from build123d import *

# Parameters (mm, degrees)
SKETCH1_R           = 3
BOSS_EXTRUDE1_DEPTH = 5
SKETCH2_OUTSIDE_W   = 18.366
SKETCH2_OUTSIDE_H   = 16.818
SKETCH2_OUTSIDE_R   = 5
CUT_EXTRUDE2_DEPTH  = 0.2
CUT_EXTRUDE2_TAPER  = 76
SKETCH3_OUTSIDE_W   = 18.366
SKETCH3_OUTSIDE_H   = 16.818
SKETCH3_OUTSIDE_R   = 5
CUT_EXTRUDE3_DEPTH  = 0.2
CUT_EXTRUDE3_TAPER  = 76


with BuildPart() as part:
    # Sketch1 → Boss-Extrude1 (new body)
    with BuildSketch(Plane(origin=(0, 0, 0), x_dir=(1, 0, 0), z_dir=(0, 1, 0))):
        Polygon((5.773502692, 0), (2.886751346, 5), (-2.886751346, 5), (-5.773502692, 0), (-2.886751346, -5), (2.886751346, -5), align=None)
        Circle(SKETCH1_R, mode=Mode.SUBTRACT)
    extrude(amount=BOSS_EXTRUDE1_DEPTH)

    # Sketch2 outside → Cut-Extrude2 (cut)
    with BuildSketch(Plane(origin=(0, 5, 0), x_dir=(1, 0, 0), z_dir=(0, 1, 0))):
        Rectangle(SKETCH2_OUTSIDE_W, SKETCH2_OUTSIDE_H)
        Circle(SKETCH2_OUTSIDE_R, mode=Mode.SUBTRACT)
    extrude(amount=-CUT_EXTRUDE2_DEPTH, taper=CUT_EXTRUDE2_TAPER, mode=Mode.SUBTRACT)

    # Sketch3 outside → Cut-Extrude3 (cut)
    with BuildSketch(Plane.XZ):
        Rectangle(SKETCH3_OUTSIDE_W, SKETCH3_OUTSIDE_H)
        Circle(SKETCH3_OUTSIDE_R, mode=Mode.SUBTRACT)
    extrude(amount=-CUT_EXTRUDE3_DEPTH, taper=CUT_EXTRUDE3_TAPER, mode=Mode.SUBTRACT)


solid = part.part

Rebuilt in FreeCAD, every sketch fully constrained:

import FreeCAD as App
import Part
import Sketcher
Q = App.Units.Quantity

doc = App.newDocument("Part")
body = doc.addObject("PartDesign::Body", "Body")

sketch1 = doc.addObject("Sketcher::SketchObject", "Sketch")
body.addObject(sketch1)
sketch1.AttachmentSupport = (doc.XZ_Plane, [""])
sketch1.MapMode = "FlatFace"
sketch1.addGeometry([
    Part.LineSegment(App.Vector(5.773503, 0, 0), App.Vector(2.886751, -5, 0)),
    Part.LineSegment(App.Vector(2.886751, -5, 0), App.Vector(-2.886751, -5, 0)),
    Part.LineSegment(App.Vector(-2.886751, -5, 0), App.Vector(-5.773503, 0, 0)),
    Part.LineSegment(App.Vector(-5.773503, 0, 0), App.Vector(-2.886751, 5, 0)),
    Part.LineSegment(App.Vector(-2.886751, 5, 0), App.Vector(2.886751, 5, 0)),
    Part.LineSegment(App.Vector(2.886751, 5, 0), App.Vector(5.773503, 0, 0)),
    Part.Circle(App.Vector(0, 0, 0), App.Vector(0, 0, 1), 3),
], False)
sketch1.addConstraint([
    Sketcher.Constraint("Coincident", 0, 2, 1, 1),
    Sketcher.Constraint("Coincident", 1, 2, 2, 1),
    Sketcher.Constraint("Coincident", 2, 2, 3, 1),
    Sketcher.Constraint("Coincident", 3, 2, 4, 1),
    Sketcher.Constraint("Coincident", 4, 2, 5, 1),
    Sketcher.Constraint("Coincident", 5, 2, 0, 1),
    Sketcher.Constraint("Horizontal", 1),
    Sketcher.Constraint("Horizontal", 4),
    Sketcher.Constraint("Coincident", 6, 3, -1, 1),
    Sketcher.Constraint("Symmetric", 0, 2, 3, 2, -1, 1),
    Sketcher.Constraint("Symmetric", 2, 2, 5, 2, -1, 1),
    Sketcher.Constraint("PointOnObject", 2, 2, -1),
    Sketcher.Constraint("Parallel", 2, 5),
    Sketcher.Constraint("Vertical", 1, 2, 3, 2),
    Sketcher.Constraint("Diameter", 6, Q("6 mm")),
    Sketcher.Constraint("Angle", 0, Q("-120 deg")),
    Sketcher.Constraint("DistanceY", 0, 2, -1, 1, Q("5 mm")),
    Sketcher.Constraint("DistanceX", 1, 2, 1, 1, Q("5.773503 mm")),
])
pad1 = doc.addObject("PartDesign::Pad", "Pad")
body.addObject(pad1)
pad1.Profile = sketch1
pad1.Length = 5
pad1.Reversed = True

sketch2 = doc.addObject("Sketcher::SketchObject", "Sketch001")
body.addObject(sketch2)
sketch2.AttachmentSupport = (doc.XZ_Plane, [""])
sketch2.MapMode = "FlatFace"
sketch2.AttachmentOffset = App.Placement(App.Vector(0, 0, -5), App.Rotation())
sketch2.addGeometry([
    Part.LineSegment(App.Vector(-9.183, -8.409, 0), App.Vector(-9.183, 8.409, 0)),
    Part.LineSegment(App.Vector(-9.183, 8.409, 0), App.Vector(9.183, 8.409, 0)),
    Part.LineSegment(App.Vector(9.183, 8.409, 0), App.Vector(9.183, -8.409, 0)),
    Part.LineSegment(App.Vector(9.183, -8.409, 0), App.Vector(-9.183, -8.409, 0)),
    Part.Circle(App.Vector(0, 0, 0), App.Vector(0, 0, 1), 5),
], False)
sketch2.addConstraint([
    Sketcher.Constraint("Coincident", 0, 2, 1, 1),
    Sketcher.Constraint("Coincident", 1, 2, 2, 1),
    Sketcher.Constraint("Coincident", 2, 2, 3, 1),
    Sketcher.Constraint("Coincident", 3, 2, 0, 1),
    Sketcher.Constraint("Vertical", 0),
    Sketcher.Constraint("Horizontal", 1),
    Sketcher.Constraint("Vertical", 2),
    Sketcher.Constraint("Horizontal", 3),
    Sketcher.Constraint("Coincident", 4, 3, -1, 1),
    Sketcher.Constraint("Symmetric", 0, 2, 2, 2, -1, 1),
    Sketcher.Constraint("Diameter", 4, Q("10 mm")),
    Sketcher.Constraint("DistanceX", 1, 1, 1, 2, Q("18.366 mm")),
    Sketcher.Constraint("DistanceY", 0, 1, 0, 2, Q("16.818 mm")),
])
pocket1 = doc.addObject("PartDesign::Pocket", "Pocket")
body.addObject(pocket1)
pocket1.Profile = sketch2
pocket1.Length = 0.2
pocket1.Reversed = True
pocket1.TaperAngle = 76

sketch3 = doc.addObject("Sketcher::SketchObject", "Sketch002")
body.addObject(sketch3)
sketch3.AttachmentSupport = (doc.XZ_Plane, [""])
sketch3.MapMode = "FlatFace"
sketch3.addGeometry([
    Part.LineSegment(App.Vector(-9.183, 8.409, 0), App.Vector(-9.183, -8.409, 0)),
    Part.LineSegment(App.Vector(-9.183, -8.409, 0), App.Vector(9.183, -8.409, 0)),
    Part.LineSegment(App.Vector(9.183, -8.409, 0), App.Vector(9.183, 8.409, 0)),
    Part.LineSegment(App.Vector(9.183, 8.409, 0), App.Vector(-9.183, 8.409, 0)),
    Part.Circle(App.Vector(0, 0, 0), App.Vector(0, 0, 1), 5),
], False)
sketch3.addConstraint([
    Sketcher.Constraint("Coincident", 0, 2, 1, 1),
    Sketcher.Constraint("Coincident", 1, 2, 2, 1),
    Sketcher.Constraint("Coincident", 2, 2, 3, 1),
    Sketcher.Constraint("Coincident", 3, 2, 0, 1),
    Sketcher.Constraint("Vertical", 0),
    Sketcher.Constraint("Horizontal", 1),
    Sketcher.Constraint("Vertical", 2),
    Sketcher.Constraint("Horizontal", 3),
    Sketcher.Constraint("Coincident", 4, 3, -1, 1),
    Sketcher.Constraint("Symmetric", 0, 2, 2, 2, -1, 1),
    Sketcher.Constraint("Diameter", 4, Q("10 mm")),
    Sketcher.Constraint("DistanceX", 1, 1, 1, 2, Q("18.366 mm")),
    Sketcher.Constraint("DistanceY", 0, 2, 0, 1, Q("16.818 mm")),
])
pocket2 = doc.addObject("PartDesign::Pocket", "Pocket001")
body.addObject(pocket2)
pocket2.Profile = sketch3
pocket2.Length = 0.2
pocket2.TaperAngle = 76

doc.recompute()
